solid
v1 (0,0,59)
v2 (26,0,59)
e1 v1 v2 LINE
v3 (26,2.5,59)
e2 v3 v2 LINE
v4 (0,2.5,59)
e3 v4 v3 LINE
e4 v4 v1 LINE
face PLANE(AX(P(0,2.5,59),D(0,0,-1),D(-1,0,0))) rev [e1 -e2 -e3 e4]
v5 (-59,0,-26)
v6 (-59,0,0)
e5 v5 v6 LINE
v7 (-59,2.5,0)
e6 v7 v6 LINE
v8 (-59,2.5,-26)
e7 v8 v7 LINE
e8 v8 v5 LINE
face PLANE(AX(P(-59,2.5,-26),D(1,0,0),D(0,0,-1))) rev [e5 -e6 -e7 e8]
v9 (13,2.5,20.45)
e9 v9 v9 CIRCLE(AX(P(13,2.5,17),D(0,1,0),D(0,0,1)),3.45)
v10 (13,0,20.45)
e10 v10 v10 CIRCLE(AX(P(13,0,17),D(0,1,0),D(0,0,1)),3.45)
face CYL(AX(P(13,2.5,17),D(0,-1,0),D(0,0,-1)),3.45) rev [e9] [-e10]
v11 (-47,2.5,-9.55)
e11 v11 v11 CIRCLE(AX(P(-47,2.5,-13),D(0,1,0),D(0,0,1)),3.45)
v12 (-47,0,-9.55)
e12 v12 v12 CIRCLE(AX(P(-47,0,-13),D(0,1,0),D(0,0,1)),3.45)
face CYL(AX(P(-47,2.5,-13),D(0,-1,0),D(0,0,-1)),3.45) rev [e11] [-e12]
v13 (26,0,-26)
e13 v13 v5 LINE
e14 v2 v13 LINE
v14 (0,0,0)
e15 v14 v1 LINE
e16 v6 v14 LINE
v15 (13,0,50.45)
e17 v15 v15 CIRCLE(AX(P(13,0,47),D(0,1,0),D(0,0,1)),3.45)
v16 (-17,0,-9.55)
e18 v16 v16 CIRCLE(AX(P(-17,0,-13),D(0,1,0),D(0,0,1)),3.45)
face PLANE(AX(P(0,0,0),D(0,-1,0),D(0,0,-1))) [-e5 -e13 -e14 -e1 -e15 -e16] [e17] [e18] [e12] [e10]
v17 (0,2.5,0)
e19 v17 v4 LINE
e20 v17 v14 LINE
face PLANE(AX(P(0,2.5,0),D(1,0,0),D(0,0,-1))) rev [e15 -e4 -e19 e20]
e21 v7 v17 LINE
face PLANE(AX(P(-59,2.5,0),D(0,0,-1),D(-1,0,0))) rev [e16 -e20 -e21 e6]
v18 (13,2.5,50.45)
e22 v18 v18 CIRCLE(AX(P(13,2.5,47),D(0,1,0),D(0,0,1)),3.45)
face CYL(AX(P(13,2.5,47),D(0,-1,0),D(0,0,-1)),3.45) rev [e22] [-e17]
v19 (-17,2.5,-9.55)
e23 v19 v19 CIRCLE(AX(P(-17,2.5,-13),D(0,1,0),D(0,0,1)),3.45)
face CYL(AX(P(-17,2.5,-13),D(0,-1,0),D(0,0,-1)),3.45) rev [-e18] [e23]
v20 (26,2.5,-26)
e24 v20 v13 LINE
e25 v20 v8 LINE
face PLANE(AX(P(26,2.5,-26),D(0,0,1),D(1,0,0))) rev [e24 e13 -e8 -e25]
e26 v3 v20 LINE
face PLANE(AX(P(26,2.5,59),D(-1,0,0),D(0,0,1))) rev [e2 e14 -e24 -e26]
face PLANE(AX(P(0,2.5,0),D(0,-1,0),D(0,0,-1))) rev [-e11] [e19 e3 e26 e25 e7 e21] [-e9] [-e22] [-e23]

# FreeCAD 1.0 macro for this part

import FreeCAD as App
import Part
import Sketcher
from FreeCAD import Vector
Q = App.Units.Quantity


def add_polygon(sketch, points):
    """Adds a closed chain of lines whose ends are joined by coincident constraints."""
    first, n = sketch.GeometryCount, len(points)
    for a, b in zip(points, points[1:] + points[:1]):
        sketch.addGeometry(Part.LineSegment(App.Vector(*a, 0), App.Vector(*b, 0)), False)
    for i in range(n):
        sketch.addConstraint(Sketcher.Constraint("Coincident", first + i, 2, first + (i + 1) % n, 1))

doc = App.newDocument("Part")
params = doc.addObject("Spreadsheet::Sheet", "Params")
for row, (alias, value) in enumerate([
    ("sketch1_diameter", "6.9 mm"),
    ("sketch1_width", "26 mm"),
    ("sketch1_width2", "85 mm"),
    ("pad1_length", "2.5 mm"),
], start=1):
    params.set(f"A{row}", alias)
    params.set(f"B{row}", "=" + value)
    params.setAlias(f"B{row}", alias)

body = doc.addObject("PartDesign::Body", "Body")

# Sketch on XZ plane
sketch1 = doc.addObject("Sketcher::SketchObject", "Sketch")
body.addObject(sketch1)
sketch1.AttachmentSupport = (doc.XZ_Plane, [""])
sketch1.MapMode = "FlatFace"
add_polygon(sketch1, [(0, 0), (0, 59), (26, 59), (26, -26), (-59, -26), (-59, 0)])  # lines 0-5
sketch1.addGeometry(Part.Circle(Vector(13, 47, 0), Vector(0, 0, 1), 3.45), False)  # 6
sketch1.addGeometry(Part.Circle(Vector(-47, -13, 0), Vector(0, 0, 1), 3.45), False)  # 7
sketch1.addGeometry(Part.Circle(Vector(13, 17, 0), Vector(0, 0, 1), 3.45), False)  # 8
sketch1.addGeometry(Part.Circle(Vector(-17, -13, 0), Vector(0, 0, 1), 3.45), False)  # 9
sketch1.addConstraint([
    Sketcher.Constraint("Vertical", 0),
    Sketcher.Constraint("Horizontal", 1),
    Sketcher.Constraint("Vertical", 2),
    Sketcher.Constraint("Horizontal", 3),
    Sketcher.Constraint("Vertical", 4),
    Sketcher.Constraint("Horizontal", 5),
    Sketcher.Constraint("Coincident", 5, 2, -1, 1),
    Sketcher.Constraint("Equal", 6, 7),
    Sketcher.Constraint("Equal", 7, 8),
    Sketcher.Constraint("Equal", 8, 9),
    Sketcher.Constraint("Horizontal", 7, 3, 9, 3),
    Sketcher.Constraint("Vertical", 6, 3, 8, 3),
    Sketcher.Constraint("Equal", 5, 0),
    Sketcher.Constraint("Equal", 3, 2),
    Sketcher.Constraint("Diameter", 6, Q("6.9 mm")),
    Sketcher.Constraint("DistanceX", 1, 1, 1, 2, Q("26 mm")),
    Sketcher.Constraint("DistanceX", 3, 2, 3, 1, Q("85 mm")),
    Sketcher.Constraint("DistanceX", -1, 1, 6, 3, Q("13 mm")),
    Sketcher.Constraint("DistanceY", -1, 1, 6, 3, Q("47 mm")),
    Sketcher.Constraint("DistanceX", 7, 3, -1, 1, Q("47 mm")),
    Sketcher.Constraint("DistanceY", 7, 3, -1, 1, Q("13 mm")),
    Sketcher.Constraint("DistanceY", -1, 1, 8, 3, Q("17 mm")),
    Sketcher.Constraint("DistanceX", 9, 3, -1, 1, Q("17 mm")),
])
sketch1.setExpression("Constraints[20]", "Params.sketch1_diameter")
sketch1.setExpression("Constraints[21]", "Params.sketch1_width")
sketch1.setExpression("Constraints[22]", "Params.sketch1_width2")
pad1 = doc.addObject("PartDesign::Pad", "Pad")
body.addObject(pad1)
pad1.Profile = sketch1
pad1.setExpression("Length", "Params.pad1_length")
pad1.Reversed = True

doc.recompute()
